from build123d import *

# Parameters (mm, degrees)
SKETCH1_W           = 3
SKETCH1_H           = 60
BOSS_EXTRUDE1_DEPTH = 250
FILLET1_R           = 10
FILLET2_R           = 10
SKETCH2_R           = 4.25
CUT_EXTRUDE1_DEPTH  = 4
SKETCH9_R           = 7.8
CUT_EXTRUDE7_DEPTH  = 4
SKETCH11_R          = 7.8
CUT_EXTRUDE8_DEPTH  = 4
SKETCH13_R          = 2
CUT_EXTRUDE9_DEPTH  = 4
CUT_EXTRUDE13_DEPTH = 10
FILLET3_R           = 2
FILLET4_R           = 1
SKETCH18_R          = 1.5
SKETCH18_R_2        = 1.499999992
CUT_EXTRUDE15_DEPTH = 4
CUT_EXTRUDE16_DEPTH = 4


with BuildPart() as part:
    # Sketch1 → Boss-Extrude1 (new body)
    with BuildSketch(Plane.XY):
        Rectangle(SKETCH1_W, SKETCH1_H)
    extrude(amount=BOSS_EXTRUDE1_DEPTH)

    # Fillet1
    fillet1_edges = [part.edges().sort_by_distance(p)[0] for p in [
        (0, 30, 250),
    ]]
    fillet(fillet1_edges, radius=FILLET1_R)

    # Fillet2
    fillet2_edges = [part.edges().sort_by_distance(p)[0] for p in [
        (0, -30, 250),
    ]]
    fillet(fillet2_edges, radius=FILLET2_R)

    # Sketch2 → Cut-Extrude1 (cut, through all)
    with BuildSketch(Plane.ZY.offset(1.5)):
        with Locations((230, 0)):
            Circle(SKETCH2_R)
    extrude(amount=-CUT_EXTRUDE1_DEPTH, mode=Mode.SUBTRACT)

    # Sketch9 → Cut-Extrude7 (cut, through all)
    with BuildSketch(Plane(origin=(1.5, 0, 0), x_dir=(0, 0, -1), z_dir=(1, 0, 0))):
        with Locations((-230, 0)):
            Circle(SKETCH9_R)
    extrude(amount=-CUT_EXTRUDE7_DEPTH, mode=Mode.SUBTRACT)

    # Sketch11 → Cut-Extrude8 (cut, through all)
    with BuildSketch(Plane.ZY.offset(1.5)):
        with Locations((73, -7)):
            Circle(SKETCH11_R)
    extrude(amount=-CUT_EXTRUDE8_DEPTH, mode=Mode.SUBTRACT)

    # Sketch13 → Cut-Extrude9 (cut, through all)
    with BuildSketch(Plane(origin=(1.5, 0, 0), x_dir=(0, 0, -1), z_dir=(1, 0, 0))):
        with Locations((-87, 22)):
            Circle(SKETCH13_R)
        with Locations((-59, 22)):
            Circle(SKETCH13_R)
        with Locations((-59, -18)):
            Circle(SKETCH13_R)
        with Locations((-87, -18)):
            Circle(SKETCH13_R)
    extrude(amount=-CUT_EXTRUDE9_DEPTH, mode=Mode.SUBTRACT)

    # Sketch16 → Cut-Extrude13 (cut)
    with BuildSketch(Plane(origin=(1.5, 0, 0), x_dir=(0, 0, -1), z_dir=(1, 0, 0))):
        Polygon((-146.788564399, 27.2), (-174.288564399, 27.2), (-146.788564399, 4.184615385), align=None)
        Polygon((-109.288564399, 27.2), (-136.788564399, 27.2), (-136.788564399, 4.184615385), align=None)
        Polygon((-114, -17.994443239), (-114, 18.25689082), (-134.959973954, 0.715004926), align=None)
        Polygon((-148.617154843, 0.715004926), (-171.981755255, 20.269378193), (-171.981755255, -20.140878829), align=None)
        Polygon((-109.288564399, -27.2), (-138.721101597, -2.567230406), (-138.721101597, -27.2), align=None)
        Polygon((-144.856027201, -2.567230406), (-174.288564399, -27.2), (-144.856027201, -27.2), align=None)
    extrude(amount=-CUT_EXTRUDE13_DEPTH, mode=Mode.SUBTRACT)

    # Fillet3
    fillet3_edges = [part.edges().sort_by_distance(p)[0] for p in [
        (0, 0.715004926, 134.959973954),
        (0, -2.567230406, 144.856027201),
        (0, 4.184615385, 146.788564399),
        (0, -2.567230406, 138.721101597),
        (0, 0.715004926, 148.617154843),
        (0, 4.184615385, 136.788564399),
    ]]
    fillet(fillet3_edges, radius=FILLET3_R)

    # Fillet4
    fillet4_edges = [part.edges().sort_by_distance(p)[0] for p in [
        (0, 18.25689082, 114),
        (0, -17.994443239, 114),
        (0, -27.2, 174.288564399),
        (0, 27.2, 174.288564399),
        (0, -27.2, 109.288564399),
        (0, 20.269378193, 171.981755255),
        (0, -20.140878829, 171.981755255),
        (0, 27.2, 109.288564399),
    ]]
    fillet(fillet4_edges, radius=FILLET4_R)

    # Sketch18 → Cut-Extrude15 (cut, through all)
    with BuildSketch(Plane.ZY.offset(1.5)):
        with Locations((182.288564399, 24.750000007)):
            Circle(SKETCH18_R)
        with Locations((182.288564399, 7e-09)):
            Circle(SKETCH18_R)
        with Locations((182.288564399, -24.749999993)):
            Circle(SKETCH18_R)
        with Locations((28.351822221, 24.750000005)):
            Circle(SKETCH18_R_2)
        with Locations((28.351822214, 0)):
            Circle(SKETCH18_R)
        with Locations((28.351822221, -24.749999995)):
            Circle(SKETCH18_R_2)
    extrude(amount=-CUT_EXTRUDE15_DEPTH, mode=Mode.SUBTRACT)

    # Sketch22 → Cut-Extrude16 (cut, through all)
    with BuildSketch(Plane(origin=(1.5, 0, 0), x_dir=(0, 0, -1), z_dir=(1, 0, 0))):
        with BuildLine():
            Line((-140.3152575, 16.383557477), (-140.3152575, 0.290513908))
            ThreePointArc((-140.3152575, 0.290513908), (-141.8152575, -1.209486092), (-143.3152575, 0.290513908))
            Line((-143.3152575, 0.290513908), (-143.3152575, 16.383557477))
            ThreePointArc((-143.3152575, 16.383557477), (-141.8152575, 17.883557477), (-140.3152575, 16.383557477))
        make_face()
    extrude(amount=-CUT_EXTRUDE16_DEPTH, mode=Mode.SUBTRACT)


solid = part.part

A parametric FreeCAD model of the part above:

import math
import FreeCAD as App
import Part
import Sketcher

V = App.Vector


def edges_at(feature, points):
    """Names of the edges that pass closest to the given points."""
    edges = feature.Shape.Edges
    near = lambda p: min(range(len(edges)), key=lambda i: edges[i].distToShape(Part.Vertex(*p))[0])
    return sorted({f"Edge{near(p) + 1}" for p in points})


def add_polygon(sketch, points):
    """Adds a closed chain of lines whose ends are joined by coincident constraints."""
    first, n = sketch.GeometryCount, len(points)
    for a, b in zip(points, points[1:] + points[:1]):
        sketch.addGeometry(Part.LineSegment(App.Vector(*a, 0), App.Vector(*b, 0)), False)
    for i in range(n):
        sketch.addConstraint(Sketcher.Constraint("Coincident", first + i, 2, first + (i + 1) % n, 1))

doc = App.newDocument("Part")
body = doc.addObject("PartDesign::Body", "Body")

# Sketch on XY plane
sketch1 = doc.addObject("Sketcher::SketchObject", "Sketch")
body.addObject(sketch1)
sketch1.AttachmentSupport = (doc.XY_Plane, [""])
sketch1.MapMode = "FlatFace"
add_polygon(sketch1, [(-1.5, 30), (-1.5, -30), (1.5, -30), (1.5, 30)])  # lines 0-3
sketch1.addConstraint([
    Sketcher.Constraint("Vertical", 0),
    Sketcher.Constraint("Horizontal", 1),
    Sketcher.Constraint("Vertical", 2),
    Sketcher.Constraint("Horizontal", 3),
    Sketcher.Constraint("Symmetric", 0, 2, 2, 2, -1, 1),
    Sketcher.Constraint("DistanceX", 1, 1, 1, 2, 3.0),
    Sketcher.Constraint("DistanceY", 0, 2, 0, 1, 60.0),
])
pad1 = doc.addObject("PartDesign::Pad", "Pad")
body.addObject(pad1)
pad1.Profile = sketch1
pad1.Length = 250
doc.recompute()

fillet = doc.addObject("PartDesign::Fillet", "Fillet")
body.addObject(fillet)
fillet.Base = (pad1, edges_at(pad1, [(0, 30, 250)]))
fillet.Radius = 10
doc.recompute()

fillet2 = doc.addObject("PartDesign::Fillet", "Fillet001")
body.addObject(fillet2)
fillet2.Base = (fillet, edges_at(fillet, [(0, -30, 250)]))
fillet2.Radius = 10

# Sketch on YZ plane
sketch2 = doc.addObject("Sketcher::SketchObject", "Sketch001")
body.addObject(sketch2)
sketch2.AttachmentSupport = (doc.YZ_Plane, [""])
sketch2.MapMode = "FlatFace"
sketch2.AttachmentOffset = App.Placement(V(0, 0, -1.5), App.Rotation())
sketch2.addGeometry(Part.Circle(V(0, 230, 0), V(0, 0, 1), 4.2), False)
sketch2.addConstraint([
    Sketcher.Constraint("PointOnObject", 0, 3, -2),
    Sketcher.Constraint("Diameter", 0, 8.5),
    Sketcher.Constraint("DistanceY", -1, 1, 0, 3, 230.0),
])
pocket1 = doc.addObject("PartDesign::Pocket", "Pocket")
body.addObject(pocket1)
pocket1.Profile = sketch2
pocket1.Type = "ThroughAll"
pocket1.Reversed = True

# Sketch on YZ plane
sketch3 = doc.addObject("Sketcher::SketchObject", "Sketch002")
body.addObject(sketch3)
sketch3.AttachmentSupport = (doc.YZ_Plane, [""])
sketch3.MapMode = "FlatFace"
sketch3.AttachmentOffset = App.Placement(V(0, 0, 1.5), App.Rotation())
sketch3.addGeometry(Part.Circle(V(0, 230, 0), V(0, 0, 1), 8), False)
sketch3.addConstraint([
    Sketcher.Constraint("PointOnObject", 0, 3, -2),
    Sketcher.Constraint("Diameter", 0, 15.6),
    Sketcher.Constraint("DistanceY", -1, 1, 0, 3, 230.0),
])
pocket2 = doc.addObject("PartDesign::Pocket", "Pocket001")
body.addObject(pocket2)
pocket2.Profile = sketch3
pocket2.Type = "ThroughAll"

# Sketch on YZ plane
sketch4 = doc.addObject("Sketcher::SketchObject", "Sketch003")
body.addObject(sketch4)
sketch4.AttachmentSupport = (doc.YZ_Plane, [""])
sketch4.MapMode = "FlatFace"
sketch4.AttachmentOffset = App.Placement(V(0, 0, -1.5), App.Rotation())
sketch4.addGeometry(Part.Circle(V(-7, 73, 0), V(0, 0, 1), 8), False)
sketch4.addConstraint([
    Sketcher.Constraint("Diameter", 0, 15.6),
    Sketcher.Constraint("DistanceX", 0, 3, -1, 1, 7.0),
    Sketcher.Constraint("DistanceY", -1, 1, 0, 3, 73.0),
])
pocket3 = doc.addObject("PartDesign::Pocket", "Pocket002")
body.addObject(pocket3)
pocket3.Profile = sketch4
pocket3.Type = "ThroughAll"
pocket3.Reversed = True

# Sketch on YZ plane
sketch5 = doc.addObject("Sketcher::SketchObject", "Sketch004")
body.addObject(sketch5)
sketch5.AttachmentSupport = (doc.YZ_Plane, [""])
sketch5.MapMode = "FlatFace"
sketch5.AttachmentOffset = App.Placement(V(0, 0, 1.5), App.Rotation())
sketch5.addGeometry([
    Part.Circle(V(22, 87, 0), V(0, 0, 1), 2),
    Part.Circle(V(22, 59, 0), V(0, 0, 1), 2),
    Part.Circle(V(-18, 59, 0), V(0, 0, 1), 2),
    Part.Circle(V(-18, 87, 0), V(0, 0, 1), 2),
], False)
sketch5.addConstraint([
    Sketcher.Constraint("Equal", 0, 1),
    Sketcher.Constraint("Equal", 1, 2),
    Sketcher.Constraint("Equal", 2, 3),
    Sketcher.Constraint("Horizontal", 1, 3, 2, 3),
    Sketcher.Constraint("Horizontal", 0, 3, 3, 3),
    Sketcher.Constraint("Vertical", 0, 3, 1, 3),
    Sketcher.Constraint("Vertical", 2, 3, 3, 3),
    Sketcher.Constraint("Diameter", 0, 4.0),
    Sketcher.Constraint("DistanceX", -1, 1, 0, 3, 22.0),
    Sketcher.Constraint("DistanceY", -1, 1, 0, 3, 87.0),
    Sketcher.Constraint("DistanceY", -1, 1, 1, 3, 59.0),
    Sketcher.Constraint("DistanceX", 2, 3, -1, 1, 18.0),
])
pocket4 = doc.addObject("PartDesign::Pocket", "Pocket003")
body.addObject(pocket4)
pocket4.Profile = sketch5
pocket4.Type = "ThroughAll"

# Sketch on YZ plane
sketch6 = doc.addObject("Sketcher::SketchObject", "Sketch005")
body.addObject(sketch6)
sketch6.AttachmentSupport = (doc.YZ_Plane, [""])
sketch6.MapMode = "FlatFace"
sketch6.AttachmentOffset = App.Placement(V(0, 0, 1.5), App.Rotation())
add_polygon(sketch6, [(27, 147), (27, 174), (4, 147)])  # lines 0-2
add_polygon(sketch6, [(27, 109), (27, 137), (4, 137)])  # lines 3-5
add_polygon(sketch6, [(-18, 114), (18, 114), (1, 135)])  # lines 6-8
add_polygon(sketch6, [(1, 149), (20, 172), (-20, 172)])  # lines 9-11
add_polygon(sketch6, [(-27, 109), (-3, 139), (-27, 139)])  # lines 12-14
add_polygon(sketch6, [(-3, 145), (-27, 174), (-27, 145)])  # lines 15-17
sketch6.addConstraint([
    Sketcher.Constraint("Vertical", 0),
    Sketcher.Constraint("Horizontal", 2),
    Sketcher.Constraint("Vertical", 3),
    Sketcher.Constraint("Horizontal", 4),
    Sketcher.Constraint("Horizontal", 6),
    Sketcher.Constraint("Horizontal", 10),
    Sketcher.Constraint("Horizontal", 13),
    Sketcher.Constraint("Vertical", 14),
    Sketcher.Constraint("Vertical", 16),
    Sketcher.Constraint("Horizontal", 17),
    Sketcher.Constraint("Symmetric", 5, 2, 14, 2, -2),
    Sketcher.Constraint("Symmetric", 0, 2, 15, 2, -2),
    Sketcher.Constraint("Parallel", 5, 7),
    Sketcher.Constraint("Parallel", 1, 9),
    Sketcher.Constraint("Parallel", 9, 12),
    Sketcher.Constraint("Parallel", 7, 15),
    Sketcher.Constraint("Vertical", 2, 2, 3, 2),
    Sketcher.Constraint("Vertical", 1, 2, 4, 2),
    Sketcher.Constraint("Vertical", 7, 2, 11, 2),
    Sketcher.Constraint("Vertical", 12, 2, 17, 2),
    Sketcher.Constraint("Equal", 0, 3),
    Sketcher.Constraint("DistanceY", 0, 1, 0, 2, 27.5),
    Sketcher.Constraint("DistanceY", -1, 1, 6, 2, 114.0),
    Sketcher.Constraint("DistanceY", 3, 2, 2, 2, 10.0),
    Sketcher.Constraint("DistanceX", -1, 1, 0, 2, 27.2),
    Sketcher.Constraint("Distance", 7, 27.332001),
    Sketcher.Constraint("DistanceX", 13, 2, 13, 1, 24.63277),
    Sketcher.Constraint("DistanceY", -1, 1, 12, 2, 138.721102),
    Sketcher.Constraint("Distance", 8, 28.095622),
    Sketcher.Constraint("DistanceX", 2, 1, 2, 2, 23.015385),
    Sketcher.Constraint("DistanceX", 10, 2, 10, 1, 40.410257),
    Sketcher.Constraint("DistanceX", -1, 1, 6, 2, 18.256891),
    Sketcher.Constraint("DistanceX", -1, 1, 9, 2, 20.269378),
    Sketcher.Constraint("DistanceY", 9, 2, 0, 2, 2.306809),
])
pocket5 = doc.addObject("PartDesign::Pocket", "Pocket004")
body.addObject(pocket5)
pocket5.Profile = sketch6
pocket5.Length = 10
doc.recompute()

fillet3 = doc.addObject("PartDesign::Fillet", "Fillet002")
body.addObject(fillet3)
fillet3.Base = (pocket5, edges_at(pocket5, [
    (0, 0.715, 134.96),
    (0, -2.567, 144.856),
    (0, 4.185, 146.789),
    (0, -2.567, 138.721),
    (0, 0.715, 148.617),
    (0, 4.185, 136.789),
]))
fillet3.Radius = 2
doc.recompute()

fillet4 = doc.addObject("PartDesign::Fillet", "Fillet003")
body.addObject(fillet4)
fillet4.Base = (fillet3, edges_at(fillet3, [
    (0, 18.257, 114),
    (0, -17.994, 114),
    (0, -27.2, 174.289),
    (0, 27.2, 174.289),
    (0, -27.2, 109.289),
    (0, 20.269, 171.982),
    (0, -20.141, 171.982),
    (0, 27.2, 109.289),
]))
fillet4.Radius = 1

# Sketch on YZ plane
sketch7 = doc.addObject("Sketcher::SketchObject", "Sketch006")
body.addObject(sketch7)
sketch7.AttachmentSupport = (doc.YZ_Plane, [""])
sketch7.MapMode = "FlatFace"
sketch7.AttachmentOffset = App.Placement(V(0, 0, -1.5), App.Rotation())
sketch7.addGeometry([
    Part.Circle(V(24.8, 182.3, 0), V(0, 0, 1), 1.5),  # 0
    Part.Circle(V(0, 182.3, 0), V(0, 0, 1), 1.5),  # 1
    Part.Circle(V(-24.7, 182.3, 0), V(0, 0, 1), 1.5),  # 2
    Part.Circle(V(24.8, 28.4, 0), V(0, 0, 1), 1.5),  # 3
    Part.Circle(V(0, 28.4, 0), V(0, 0, 1), 1.5),  # 4
    Part.Circle(V(-24.7, 28.4, 0), V(0, 0, 1), 1.5),  # 5
], False)
sketch7.addConstraint([
    Sketcher.Constraint("Equal", 0, 1),
    Sketcher.Constraint("Equal", 1, 2),
    Sketcher.Constraint("Equal", 2, 3),
    Sketcher.Constraint("Equal", 3, 4),
    Sketcher.Constraint("Equal", 4, 5),
    Sketcher.Constraint("Symmetric", 0, 3, 2, 3, -2),
    Sketcher.Constraint("Symmetric", 3, 3, 5, 3, -2),
    Sketcher.Constraint("PointOnObject", 1, 3, -2),
    Sketcher.Constraint("PointOnObject", 4, 3, -2),
    Sketcher.Constraint("Horizontal", 0, 3, 1, 3),
    Sketcher.Constraint("Horizontal", 3, 3, 4, 3),
    Sketcher.Constraint("Vertical", 0, 3, 3, 3),
    Sketcher.Constraint("Diameter", 0, 3.0),
    Sketcher.Constraint("DistanceX", 2, 3, 0, 3, 49.5),
    Sketcher.Constraint("DistanceY", -1, 1, 0, 3, 182.288564),
    Sketcher.Constraint("DistanceY", -1, 1, 3, 3, 28.351822),
])
pocket6 = doc.addObject("PartDesign::Pocket", "Pocket005")
body.addObject(pocket6)
pocket6.Profile = sketch7
pocket6.Type = "ThroughAll"
pocket6.Reversed = True

# Sketch on YZ plane
sketch8 = doc.addObject("Sketcher::SketchObject", "Sketch007")
body.addObject(sketch8)
sketch8.AttachmentSupport = (doc.YZ_Plane, [""])
sketch8.MapMode = "FlatFace"
sketch8.AttachmentOffset = App.Placement(V(0, 0, 1.5), App.Rotation())
sketch8.addGeometry([
    Part.LineSegment(V(0.3, 140.3, 0), V(16.4, 140.3, 0)),
    Part.ArcOfCircle(Part.Circle(V(16.4, 141.8, 0), V(0, 0, 1), 1.5), math.radians(-90), math.radians(90)),
    Part.LineSegment(V(16.4, 143.3, 0), V(0.3, 143.3, 0)),
    Part.ArcOfCircle(Part.Circle(V(0.3, 141.8, 0), V(0, 0, 1), 1.5), math.radians(90), math.radians(270)),
], False)
sketch8.addConstraint([
    Sketcher.Constraint("Tangent", 0, 2, 1, 1),
    Sketcher.Constraint("Tangent", 1, 2, 2, 1),
    Sketcher.Constraint("Tangent", 2, 2, 3, 1),
    Sketcher.Constraint("Tangent", 3, 2, 0, 1),
    Sketcher.Constraint("Horizontal", 0),
    Sketcher.Constraint("Horizontal", 2),
    Sketcher.Constraint("Radius", 1, 1.5),
    Sketcher.Constraint("DistanceX", 0, 1, 0, 2, 16.093044),
    Sketcher.Constraint("DistanceX", -1, 1, 1, 3, 16.383557),
    Sketcher.Constraint("DistanceY", -1, 1, 1, 3, 141.815258),
])
pocket7 = doc.addObject("PartDesign::Pocket", "Pocket006")
body.addObject(pocket7)
pocket7.Profile = sketch8
pocket7.Type = "ThroughAll"

doc.recompute()
